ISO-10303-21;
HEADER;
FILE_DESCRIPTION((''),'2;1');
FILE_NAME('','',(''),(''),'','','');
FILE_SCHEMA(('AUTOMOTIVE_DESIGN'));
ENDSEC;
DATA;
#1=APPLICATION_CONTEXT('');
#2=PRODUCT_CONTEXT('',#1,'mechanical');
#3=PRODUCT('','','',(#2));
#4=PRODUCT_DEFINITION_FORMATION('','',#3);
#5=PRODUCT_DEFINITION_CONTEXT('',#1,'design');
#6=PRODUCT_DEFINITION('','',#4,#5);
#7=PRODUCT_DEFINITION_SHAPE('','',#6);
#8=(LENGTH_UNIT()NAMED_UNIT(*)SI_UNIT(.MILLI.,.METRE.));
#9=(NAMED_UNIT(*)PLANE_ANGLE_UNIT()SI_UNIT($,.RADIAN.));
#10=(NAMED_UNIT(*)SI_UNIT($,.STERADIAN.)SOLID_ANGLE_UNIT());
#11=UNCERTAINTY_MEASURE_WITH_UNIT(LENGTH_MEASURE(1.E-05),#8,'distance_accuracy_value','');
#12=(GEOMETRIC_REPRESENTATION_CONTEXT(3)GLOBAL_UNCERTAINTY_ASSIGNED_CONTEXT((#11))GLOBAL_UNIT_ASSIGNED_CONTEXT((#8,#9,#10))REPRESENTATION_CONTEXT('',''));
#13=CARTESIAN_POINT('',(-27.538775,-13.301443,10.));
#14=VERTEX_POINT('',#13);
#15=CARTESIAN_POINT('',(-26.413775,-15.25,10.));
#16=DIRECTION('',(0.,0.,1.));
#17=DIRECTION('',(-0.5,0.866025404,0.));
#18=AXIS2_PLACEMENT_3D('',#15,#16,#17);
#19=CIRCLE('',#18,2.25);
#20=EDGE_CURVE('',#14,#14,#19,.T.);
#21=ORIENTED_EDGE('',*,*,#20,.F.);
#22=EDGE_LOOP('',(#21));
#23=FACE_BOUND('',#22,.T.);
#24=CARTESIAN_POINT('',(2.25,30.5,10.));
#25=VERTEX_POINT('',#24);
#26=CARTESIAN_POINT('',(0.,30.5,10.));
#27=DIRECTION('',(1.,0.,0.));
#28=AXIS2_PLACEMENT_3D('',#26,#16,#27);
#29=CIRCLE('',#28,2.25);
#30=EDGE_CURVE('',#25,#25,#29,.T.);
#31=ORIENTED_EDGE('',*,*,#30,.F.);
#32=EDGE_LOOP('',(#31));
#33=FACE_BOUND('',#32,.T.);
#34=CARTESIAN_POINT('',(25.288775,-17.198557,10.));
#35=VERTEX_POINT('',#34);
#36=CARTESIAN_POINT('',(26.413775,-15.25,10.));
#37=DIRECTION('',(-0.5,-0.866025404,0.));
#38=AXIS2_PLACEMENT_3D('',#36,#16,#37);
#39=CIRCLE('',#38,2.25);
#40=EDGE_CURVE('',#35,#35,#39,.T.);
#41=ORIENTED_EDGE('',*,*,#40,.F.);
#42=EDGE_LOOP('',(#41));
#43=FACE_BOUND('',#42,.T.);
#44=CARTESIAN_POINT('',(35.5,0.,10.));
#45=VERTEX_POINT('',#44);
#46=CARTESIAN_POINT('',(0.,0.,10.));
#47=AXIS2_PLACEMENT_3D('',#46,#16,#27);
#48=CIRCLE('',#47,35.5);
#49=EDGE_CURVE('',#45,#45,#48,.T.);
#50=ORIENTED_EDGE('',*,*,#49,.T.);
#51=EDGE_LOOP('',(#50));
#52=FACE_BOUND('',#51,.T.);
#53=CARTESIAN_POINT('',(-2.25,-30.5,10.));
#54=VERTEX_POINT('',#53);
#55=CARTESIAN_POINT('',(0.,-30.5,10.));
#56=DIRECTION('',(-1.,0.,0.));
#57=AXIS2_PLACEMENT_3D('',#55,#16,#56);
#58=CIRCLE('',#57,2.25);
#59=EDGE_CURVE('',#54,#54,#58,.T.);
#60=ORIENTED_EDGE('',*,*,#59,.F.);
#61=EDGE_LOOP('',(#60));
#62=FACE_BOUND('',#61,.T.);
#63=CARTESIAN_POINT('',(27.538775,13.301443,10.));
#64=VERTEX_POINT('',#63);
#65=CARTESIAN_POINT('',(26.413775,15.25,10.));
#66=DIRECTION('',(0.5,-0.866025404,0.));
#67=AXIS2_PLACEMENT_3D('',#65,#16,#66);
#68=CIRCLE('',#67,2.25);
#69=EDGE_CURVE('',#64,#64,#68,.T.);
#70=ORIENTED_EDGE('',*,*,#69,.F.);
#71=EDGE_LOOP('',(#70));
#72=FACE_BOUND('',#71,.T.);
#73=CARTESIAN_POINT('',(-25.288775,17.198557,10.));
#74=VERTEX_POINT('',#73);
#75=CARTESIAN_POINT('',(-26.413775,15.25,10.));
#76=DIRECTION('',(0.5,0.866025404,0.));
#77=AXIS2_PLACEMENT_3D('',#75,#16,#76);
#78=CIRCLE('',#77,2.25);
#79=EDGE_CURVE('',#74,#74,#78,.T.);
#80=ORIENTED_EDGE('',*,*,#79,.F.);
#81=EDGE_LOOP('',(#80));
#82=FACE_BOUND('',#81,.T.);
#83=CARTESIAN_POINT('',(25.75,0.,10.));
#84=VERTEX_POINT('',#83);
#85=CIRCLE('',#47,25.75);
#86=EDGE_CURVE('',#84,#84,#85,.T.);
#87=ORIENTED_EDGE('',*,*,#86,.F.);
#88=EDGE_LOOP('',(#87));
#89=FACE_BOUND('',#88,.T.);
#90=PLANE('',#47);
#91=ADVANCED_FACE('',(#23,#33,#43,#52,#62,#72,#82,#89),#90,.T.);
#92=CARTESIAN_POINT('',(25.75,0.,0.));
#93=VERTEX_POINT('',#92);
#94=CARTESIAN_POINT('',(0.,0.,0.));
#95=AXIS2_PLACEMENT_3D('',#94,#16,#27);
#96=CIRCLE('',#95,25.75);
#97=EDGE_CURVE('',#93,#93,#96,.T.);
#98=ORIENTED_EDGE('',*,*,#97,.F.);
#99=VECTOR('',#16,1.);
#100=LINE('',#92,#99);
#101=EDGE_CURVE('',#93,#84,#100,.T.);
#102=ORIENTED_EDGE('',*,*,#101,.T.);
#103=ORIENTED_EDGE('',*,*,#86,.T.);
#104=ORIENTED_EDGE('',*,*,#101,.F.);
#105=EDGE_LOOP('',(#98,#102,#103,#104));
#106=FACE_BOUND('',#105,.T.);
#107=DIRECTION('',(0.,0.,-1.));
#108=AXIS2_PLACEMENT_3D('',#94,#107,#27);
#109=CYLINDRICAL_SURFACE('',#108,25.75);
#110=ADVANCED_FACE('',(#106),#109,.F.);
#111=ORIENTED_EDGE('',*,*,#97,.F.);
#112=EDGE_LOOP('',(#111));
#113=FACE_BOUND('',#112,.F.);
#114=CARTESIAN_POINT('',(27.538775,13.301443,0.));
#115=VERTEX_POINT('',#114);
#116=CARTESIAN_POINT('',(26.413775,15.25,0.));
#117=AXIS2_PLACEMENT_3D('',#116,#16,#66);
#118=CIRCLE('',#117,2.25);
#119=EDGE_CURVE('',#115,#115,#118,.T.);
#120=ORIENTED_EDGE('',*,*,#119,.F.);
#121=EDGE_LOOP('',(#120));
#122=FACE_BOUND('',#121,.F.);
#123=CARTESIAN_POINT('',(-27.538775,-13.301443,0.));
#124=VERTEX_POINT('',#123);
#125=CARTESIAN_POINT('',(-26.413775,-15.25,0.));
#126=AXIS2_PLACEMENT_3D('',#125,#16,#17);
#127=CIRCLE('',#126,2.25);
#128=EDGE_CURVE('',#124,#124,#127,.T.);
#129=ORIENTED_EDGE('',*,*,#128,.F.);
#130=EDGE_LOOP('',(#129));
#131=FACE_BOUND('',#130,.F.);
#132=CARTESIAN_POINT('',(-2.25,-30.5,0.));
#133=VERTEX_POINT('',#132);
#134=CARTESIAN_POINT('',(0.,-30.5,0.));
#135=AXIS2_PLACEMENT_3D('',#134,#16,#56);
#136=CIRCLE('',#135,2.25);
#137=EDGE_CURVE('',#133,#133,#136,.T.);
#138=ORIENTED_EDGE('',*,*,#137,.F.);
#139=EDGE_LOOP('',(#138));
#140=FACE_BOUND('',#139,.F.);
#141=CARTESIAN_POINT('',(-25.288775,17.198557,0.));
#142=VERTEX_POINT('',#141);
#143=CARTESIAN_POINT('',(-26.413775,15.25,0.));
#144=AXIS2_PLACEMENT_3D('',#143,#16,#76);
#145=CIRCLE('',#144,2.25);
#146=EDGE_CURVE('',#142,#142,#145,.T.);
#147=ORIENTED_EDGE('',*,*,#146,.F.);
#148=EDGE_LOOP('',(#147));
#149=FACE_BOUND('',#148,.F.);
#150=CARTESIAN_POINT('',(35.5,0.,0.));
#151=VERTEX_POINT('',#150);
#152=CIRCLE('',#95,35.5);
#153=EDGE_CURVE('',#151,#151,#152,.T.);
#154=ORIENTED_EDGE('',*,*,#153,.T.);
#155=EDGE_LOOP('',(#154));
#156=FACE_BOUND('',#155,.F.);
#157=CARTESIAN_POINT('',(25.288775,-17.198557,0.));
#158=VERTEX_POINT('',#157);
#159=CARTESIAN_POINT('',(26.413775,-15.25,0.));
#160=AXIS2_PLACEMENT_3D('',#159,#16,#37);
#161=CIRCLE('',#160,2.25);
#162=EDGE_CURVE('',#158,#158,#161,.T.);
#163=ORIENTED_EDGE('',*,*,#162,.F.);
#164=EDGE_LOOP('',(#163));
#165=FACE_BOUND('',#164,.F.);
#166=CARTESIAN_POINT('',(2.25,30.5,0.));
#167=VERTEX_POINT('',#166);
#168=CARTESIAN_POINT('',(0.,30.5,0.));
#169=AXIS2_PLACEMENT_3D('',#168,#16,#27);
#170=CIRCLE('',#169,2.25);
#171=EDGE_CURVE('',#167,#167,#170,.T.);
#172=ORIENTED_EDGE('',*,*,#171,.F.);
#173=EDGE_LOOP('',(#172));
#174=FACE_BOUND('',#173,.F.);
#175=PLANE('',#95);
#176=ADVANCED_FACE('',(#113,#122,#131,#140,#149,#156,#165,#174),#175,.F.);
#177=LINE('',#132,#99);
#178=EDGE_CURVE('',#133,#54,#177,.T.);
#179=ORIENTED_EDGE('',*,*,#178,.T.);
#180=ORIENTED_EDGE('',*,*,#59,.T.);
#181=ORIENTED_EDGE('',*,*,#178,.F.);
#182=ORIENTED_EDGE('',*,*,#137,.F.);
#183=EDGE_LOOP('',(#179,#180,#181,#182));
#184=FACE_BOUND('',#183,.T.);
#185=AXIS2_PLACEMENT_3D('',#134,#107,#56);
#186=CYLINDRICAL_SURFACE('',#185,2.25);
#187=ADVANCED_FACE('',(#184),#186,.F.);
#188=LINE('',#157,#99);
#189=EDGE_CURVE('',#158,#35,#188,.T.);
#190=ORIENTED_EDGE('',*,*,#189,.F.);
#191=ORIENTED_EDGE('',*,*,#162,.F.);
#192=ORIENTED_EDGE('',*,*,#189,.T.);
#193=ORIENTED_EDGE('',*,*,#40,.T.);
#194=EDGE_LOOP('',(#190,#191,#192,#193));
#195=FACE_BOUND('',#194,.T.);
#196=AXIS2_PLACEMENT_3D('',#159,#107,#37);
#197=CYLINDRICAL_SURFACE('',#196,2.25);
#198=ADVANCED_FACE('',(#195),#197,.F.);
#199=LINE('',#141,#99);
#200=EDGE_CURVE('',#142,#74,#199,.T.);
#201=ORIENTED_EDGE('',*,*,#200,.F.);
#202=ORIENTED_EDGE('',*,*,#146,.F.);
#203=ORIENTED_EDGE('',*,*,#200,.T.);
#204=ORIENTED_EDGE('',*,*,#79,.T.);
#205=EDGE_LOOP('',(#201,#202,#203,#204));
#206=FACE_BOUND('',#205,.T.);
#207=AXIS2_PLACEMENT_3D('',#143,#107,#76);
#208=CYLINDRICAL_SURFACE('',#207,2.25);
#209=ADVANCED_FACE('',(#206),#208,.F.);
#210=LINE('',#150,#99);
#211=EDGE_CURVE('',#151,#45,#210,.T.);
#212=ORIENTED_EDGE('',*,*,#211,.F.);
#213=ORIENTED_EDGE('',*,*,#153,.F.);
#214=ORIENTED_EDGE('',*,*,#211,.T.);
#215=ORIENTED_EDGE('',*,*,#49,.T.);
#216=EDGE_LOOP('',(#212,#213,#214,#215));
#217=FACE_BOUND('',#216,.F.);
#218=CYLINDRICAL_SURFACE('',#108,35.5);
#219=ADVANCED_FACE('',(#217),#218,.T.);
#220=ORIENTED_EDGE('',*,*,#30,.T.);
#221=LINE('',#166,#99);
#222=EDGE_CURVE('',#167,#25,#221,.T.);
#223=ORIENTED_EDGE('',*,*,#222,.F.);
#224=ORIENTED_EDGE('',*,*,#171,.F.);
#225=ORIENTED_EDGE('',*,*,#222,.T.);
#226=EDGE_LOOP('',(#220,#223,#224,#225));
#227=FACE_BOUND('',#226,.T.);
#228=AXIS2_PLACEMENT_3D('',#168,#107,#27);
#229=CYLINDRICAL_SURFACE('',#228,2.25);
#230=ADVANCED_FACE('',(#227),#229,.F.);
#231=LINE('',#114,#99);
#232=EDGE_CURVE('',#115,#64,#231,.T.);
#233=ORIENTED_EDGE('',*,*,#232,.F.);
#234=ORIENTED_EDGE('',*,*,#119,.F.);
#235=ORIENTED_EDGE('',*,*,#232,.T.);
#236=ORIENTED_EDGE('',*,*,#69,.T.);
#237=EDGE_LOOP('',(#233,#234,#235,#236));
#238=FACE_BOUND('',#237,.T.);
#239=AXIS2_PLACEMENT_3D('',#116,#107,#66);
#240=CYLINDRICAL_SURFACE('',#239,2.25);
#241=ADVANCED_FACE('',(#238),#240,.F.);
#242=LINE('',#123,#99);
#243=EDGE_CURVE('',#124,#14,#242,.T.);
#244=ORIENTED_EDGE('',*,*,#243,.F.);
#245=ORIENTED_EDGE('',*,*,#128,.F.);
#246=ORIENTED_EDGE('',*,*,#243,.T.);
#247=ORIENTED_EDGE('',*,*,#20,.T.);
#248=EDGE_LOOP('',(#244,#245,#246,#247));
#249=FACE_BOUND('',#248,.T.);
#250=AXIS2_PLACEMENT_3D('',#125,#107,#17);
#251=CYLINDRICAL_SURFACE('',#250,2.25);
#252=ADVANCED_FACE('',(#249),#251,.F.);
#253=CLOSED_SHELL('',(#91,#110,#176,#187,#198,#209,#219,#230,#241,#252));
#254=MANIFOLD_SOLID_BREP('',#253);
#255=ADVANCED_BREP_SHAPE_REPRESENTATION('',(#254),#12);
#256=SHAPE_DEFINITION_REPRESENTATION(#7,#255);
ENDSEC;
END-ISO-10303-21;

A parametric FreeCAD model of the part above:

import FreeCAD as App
import Part
import Sketcher

doc = App.newDocument("Part")
params = doc.addObject("Spreadsheet::Sheet", "Params")
for row, (alias, value) in enumerate([
    ("sketch1_diameter", "71 mm"),
    ("sketch1_diameter2", "51.5 mm"),
    ("pad1_length", "10 mm"),
    ("sketch2_diameter", "4.5 mm"),
    ("pocket1_length", "10 mm"),
], start=1):
    params.set(f"A{row}", alias)
    params.set(f"B{row}", "=" + value)
    params.setAlias(f"B{row}", alias)

body = doc.addObject("PartDesign::Body", "Body")

# Sketch on XY plane
sketch1 = doc.addObject("Sketcher::SketchObject", "Sketch")
body.addObject(sketch1)
sketch1.AttachmentSupport = (doc.XY_Plane, [""])
sketch1.MapMode = "FlatFace"
sketch1.addGeometry(Part.Circle(App.Vector(0, 0, 0), App.Vector(0, 0, 1), 35.5), False)
sketch1.addGeometry(Part.Circle(App.Vector(0, 0, 0), App.Vector(0, 0, 1), 25.75), False)
sketch1.addConstraint(Sketcher.Constraint("Coincident", 0, 3, -1, 1))
sketch1.addConstraint(Sketcher.Constraint("Coincident", 1, 3, -1, 1))
sketch1.addConstraint(Sketcher.Constraint("Diameter", 0, 71.0))
sketch1.addConstraint(Sketcher.Constraint("Diameter", 1, 51.5))
sketch1.setExpression("Constraints[2]", "Params.sketch1_diameter")
sketch1.setExpression("Constraints[3]", "Params.sketch1_diameter2")
pad1 = doc.addObject("PartDesign::Pad", "Pad")
body.addObject(pad1)
pad1.Profile = sketch1
pad1.setExpression("Length", "Params.pad1_length")

# Sketch on XY plane
sketch2 = doc.addObject("Sketcher::SketchObject", "Sketch001")
body.addObject(sketch2)
sketch2.AttachmentSupport = (doc.XY_Plane, [""])
sketch2.MapMode = "FlatFace"
sketch2.addGeometry(Part.Circle(App.Vector(0, 30.5, 0), App.Vector(0, 0, 1), 2.25), False)
sketch2.addConstraint(Sketcher.Constraint("PointOnObject", 0, 3, -2))
sketch2.addConstraint(Sketcher.Constraint("Diameter", 0, 4.5))
sketch2.addConstraint(Sketcher.Constraint("DistanceY", -1, 1, 0, 3, 30.5))
sketch2.setExpression("Constraints[1]", "Params.sketch2_diameter")
pocket1 = doc.addObject("PartDesign::Pocket", "Pocket")
body.addObject(pocket1)
pocket1.Profile = sketch2
pocket1.setExpression("Length", "Params.pocket1_length")
pocket1.Reversed = True
doc.recompute()

polarpattern = doc.addObject("PartDesign::PolarPattern", "PolarPattern")
body.addObject(polarpattern)
polarpattern.Originals = [pocket1]
polarpattern.Axis = (doc.Z_Axis, [""])
polarpattern.Angle = 360
polarpattern.Occurrences = 6
body.Tip = polarpattern

doc.recompute()
